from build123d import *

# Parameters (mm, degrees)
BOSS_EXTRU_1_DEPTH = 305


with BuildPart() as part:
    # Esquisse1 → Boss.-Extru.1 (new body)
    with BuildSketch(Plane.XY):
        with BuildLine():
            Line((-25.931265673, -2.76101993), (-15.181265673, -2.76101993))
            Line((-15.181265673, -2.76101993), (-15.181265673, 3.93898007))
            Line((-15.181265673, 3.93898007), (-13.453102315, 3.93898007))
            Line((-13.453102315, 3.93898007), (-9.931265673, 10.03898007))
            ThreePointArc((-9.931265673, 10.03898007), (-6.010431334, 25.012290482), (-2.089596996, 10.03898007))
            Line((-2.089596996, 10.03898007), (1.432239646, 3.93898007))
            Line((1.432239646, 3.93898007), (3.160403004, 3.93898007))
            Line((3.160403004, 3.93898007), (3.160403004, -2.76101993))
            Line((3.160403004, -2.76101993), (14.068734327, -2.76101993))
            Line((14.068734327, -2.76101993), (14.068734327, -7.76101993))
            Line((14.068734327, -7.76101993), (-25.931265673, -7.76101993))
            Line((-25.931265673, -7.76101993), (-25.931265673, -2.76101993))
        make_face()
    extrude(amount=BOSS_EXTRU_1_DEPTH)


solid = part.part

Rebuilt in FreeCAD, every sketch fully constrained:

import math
import FreeCAD as App
import Part
import Sketcher

V = App.Vector
Q = App.Units.Quantity

doc = App.newDocument("Part")
params = doc.addObject("Spreadsheet::Sheet", "Params")
for row, (alias, value) in enumerate([
    ("sketch1_radius", "8 mm"),
    ("sketch1_width", "40 mm"),
    ("sketch1_height", "5 mm"),
    ("sketch1_height2", "6.7 mm"),
    ("sketch1_width2", "10.75 mm"),
    ("pad1_length", "305 mm"),
], start=1):
    params.set(f"A{row}", alias)
    params.set(f"B{row}", "=" + value)
    params.setAlias(f"B{row}", alias)

body = doc.addObject("PartDesign::Body", "Body")

# Sketch on XY plane
sketch1 = body.newObject("Sketcher::SketchObject", "Sketch")
sketch1.AttachmentSupport = (doc.getObject("XY_Plane"), [""])
sketch1.MapMode = "FlatFace"
sketch1.addGeometry([
    Part.LineSegment(V(-15.2, -2.8, 0), V(-25.9, -2.8, 0)),  # 0
    Part.LineSegment(V(-25.9, -2.8, 0), V(-25.9, -7.8, 0)),  # 1
    Part.LineSegment(V(-25.9, -7.8, 0), V(14.1, -7.8, 0)),  # 2
    Part.LineSegment(V(14.1, -7.8, 0), V(14.1, -2.8, 0)),  # 3
    Part.LineSegment(V(14.1, -2.8, 0), V(3.2, -2.8, 0)),  # 4
    Part.LineSegment(V(3.2, -2.8, 0), V(3.2, 3.9, 0)),  # 5
    Part.LineSegment(V(3.2, 3.9, 0), V(1.4, 3.9, 0)),  # 6
    Part.LineSegment(V(1.4, 3.9, 0), V(-2.1, 10, 0)),  # 7
    Part.ArcOfCircle(Part.Circle(V(-6, 17, 0), V(0, 0, 1), 8), math.radians(-61), math.radians(241)),  # 8
    Part.LineSegment(V(-9.9, 10, 0), V(-13.5, 3.9, 0)),  # 9
    Part.LineSegment(V(-13.5, 3.9, 0), V(-15.2, 3.9, 0)),  # 10
    Part.LineSegment(V(-15.2, 3.9, 0), V(-15.2, -2.8, 0)),  # 11
], False)
sketch1.addConstraint([
    Sketcher.Constraint("Coincident", 0, 2, 1, 1),
    Sketcher.Constraint("Coincident", 1, 2, 2, 1),
    Sketcher.Constraint("Coincident", 2, 2, 3, 1),
    Sketcher.Constraint("Coincident", 3, 2, 4, 1),
    Sketcher.Constraint("Coincident", 4, 2, 5, 1),
    Sketcher.Constraint("Coincident", 5, 2, 6, 1),
    Sketcher.Constraint("Coincident", 6, 2, 7, 1),
    Sketcher.Constraint("Coincident", 7, 2, 8, 1),
    Sketcher.Constraint("Coincident", 8, 2, 9, 1),
    Sketcher.Constraint("Coincident", 9, 2, 10, 1),
    Sketcher.Constraint("Coincident", 10, 2, 11, 1),
    Sketcher.Constraint("Coincident", 11, 2, 0, 1),
    Sketcher.Constraint("Horizontal", 0),
    Sketcher.Constraint("Vertical", 1),
    Sketcher.Constraint("Horizontal", 2),
    Sketcher.Constraint("Vertical", 3),
    Sketcher.Constraint("Horizontal", 4),
    Sketcher.Constraint("Vertical", 5),
    Sketcher.Constraint("Horizontal", 6),
    Sketcher.Constraint("Horizontal", 10),
    Sketcher.Constraint("Vertical", 11),
    Sketcher.Constraint("Horizontal", 0, 2, 3, 2),
    Sketcher.Constraint("Horizontal", 7, 2, 8, 2),
    Sketcher.Constraint("Horizontal", 6, 2, 9, 2),
    Sketcher.Constraint("Equal", 6, 10),
    Sketcher.Constraint("Equal", 7, 9),
    Sketcher.Constraint("Radius", 8, 8.0),
    Sketcher.Constraint("DistanceX", 2, 1, 2, 2, 40.0),
    Sketcher.Constraint("DistanceY", 1, 2, 1, 1, 5.0),
    Sketcher.Constraint("Angle", 7, Q("120 deg")),
    Sketcher.Constraint("DistanceY", 5, 1, 5, 2, 6.7),
    Sketcher.Constraint("DistanceX", 0, 2, 0, 1, 10.75),
    Sketcher.Constraint("DistanceY", 6, 2, 7, 2, 6.1),
    Sketcher.Constraint("DistanceX", 7, 2, 5, 2, 5.25),
    Sketcher.Constraint("DistanceX", 4, 2, 4, 1, 10.908331),
    Sketcher.Constraint("DistanceX", 8, 3, -1, 1, 6.010431),
    Sketcher.Constraint("DistanceY", -1, 1, 8, 3, 17.01229),
])
sketch1.setExpression("Constraints[26]", "Params.sketch1_radius")
sketch1.setExpression("Constraints[27]", "Params.sketch1_width")
sketch1.setExpression("Constraints[28]", "Params.sketch1_height")
sketch1.setExpression("Constraints[30]", "Params.sketch1_height2")
sketch1.setExpression("Constraints[31]", "Params.sketch1_width2")
pad1 = body.newObject("PartDesign::Pad", "Pad")
pad1.Profile = sketch1
pad1.setExpression("Length", "Params.pad1_length")

doc.recompute()
